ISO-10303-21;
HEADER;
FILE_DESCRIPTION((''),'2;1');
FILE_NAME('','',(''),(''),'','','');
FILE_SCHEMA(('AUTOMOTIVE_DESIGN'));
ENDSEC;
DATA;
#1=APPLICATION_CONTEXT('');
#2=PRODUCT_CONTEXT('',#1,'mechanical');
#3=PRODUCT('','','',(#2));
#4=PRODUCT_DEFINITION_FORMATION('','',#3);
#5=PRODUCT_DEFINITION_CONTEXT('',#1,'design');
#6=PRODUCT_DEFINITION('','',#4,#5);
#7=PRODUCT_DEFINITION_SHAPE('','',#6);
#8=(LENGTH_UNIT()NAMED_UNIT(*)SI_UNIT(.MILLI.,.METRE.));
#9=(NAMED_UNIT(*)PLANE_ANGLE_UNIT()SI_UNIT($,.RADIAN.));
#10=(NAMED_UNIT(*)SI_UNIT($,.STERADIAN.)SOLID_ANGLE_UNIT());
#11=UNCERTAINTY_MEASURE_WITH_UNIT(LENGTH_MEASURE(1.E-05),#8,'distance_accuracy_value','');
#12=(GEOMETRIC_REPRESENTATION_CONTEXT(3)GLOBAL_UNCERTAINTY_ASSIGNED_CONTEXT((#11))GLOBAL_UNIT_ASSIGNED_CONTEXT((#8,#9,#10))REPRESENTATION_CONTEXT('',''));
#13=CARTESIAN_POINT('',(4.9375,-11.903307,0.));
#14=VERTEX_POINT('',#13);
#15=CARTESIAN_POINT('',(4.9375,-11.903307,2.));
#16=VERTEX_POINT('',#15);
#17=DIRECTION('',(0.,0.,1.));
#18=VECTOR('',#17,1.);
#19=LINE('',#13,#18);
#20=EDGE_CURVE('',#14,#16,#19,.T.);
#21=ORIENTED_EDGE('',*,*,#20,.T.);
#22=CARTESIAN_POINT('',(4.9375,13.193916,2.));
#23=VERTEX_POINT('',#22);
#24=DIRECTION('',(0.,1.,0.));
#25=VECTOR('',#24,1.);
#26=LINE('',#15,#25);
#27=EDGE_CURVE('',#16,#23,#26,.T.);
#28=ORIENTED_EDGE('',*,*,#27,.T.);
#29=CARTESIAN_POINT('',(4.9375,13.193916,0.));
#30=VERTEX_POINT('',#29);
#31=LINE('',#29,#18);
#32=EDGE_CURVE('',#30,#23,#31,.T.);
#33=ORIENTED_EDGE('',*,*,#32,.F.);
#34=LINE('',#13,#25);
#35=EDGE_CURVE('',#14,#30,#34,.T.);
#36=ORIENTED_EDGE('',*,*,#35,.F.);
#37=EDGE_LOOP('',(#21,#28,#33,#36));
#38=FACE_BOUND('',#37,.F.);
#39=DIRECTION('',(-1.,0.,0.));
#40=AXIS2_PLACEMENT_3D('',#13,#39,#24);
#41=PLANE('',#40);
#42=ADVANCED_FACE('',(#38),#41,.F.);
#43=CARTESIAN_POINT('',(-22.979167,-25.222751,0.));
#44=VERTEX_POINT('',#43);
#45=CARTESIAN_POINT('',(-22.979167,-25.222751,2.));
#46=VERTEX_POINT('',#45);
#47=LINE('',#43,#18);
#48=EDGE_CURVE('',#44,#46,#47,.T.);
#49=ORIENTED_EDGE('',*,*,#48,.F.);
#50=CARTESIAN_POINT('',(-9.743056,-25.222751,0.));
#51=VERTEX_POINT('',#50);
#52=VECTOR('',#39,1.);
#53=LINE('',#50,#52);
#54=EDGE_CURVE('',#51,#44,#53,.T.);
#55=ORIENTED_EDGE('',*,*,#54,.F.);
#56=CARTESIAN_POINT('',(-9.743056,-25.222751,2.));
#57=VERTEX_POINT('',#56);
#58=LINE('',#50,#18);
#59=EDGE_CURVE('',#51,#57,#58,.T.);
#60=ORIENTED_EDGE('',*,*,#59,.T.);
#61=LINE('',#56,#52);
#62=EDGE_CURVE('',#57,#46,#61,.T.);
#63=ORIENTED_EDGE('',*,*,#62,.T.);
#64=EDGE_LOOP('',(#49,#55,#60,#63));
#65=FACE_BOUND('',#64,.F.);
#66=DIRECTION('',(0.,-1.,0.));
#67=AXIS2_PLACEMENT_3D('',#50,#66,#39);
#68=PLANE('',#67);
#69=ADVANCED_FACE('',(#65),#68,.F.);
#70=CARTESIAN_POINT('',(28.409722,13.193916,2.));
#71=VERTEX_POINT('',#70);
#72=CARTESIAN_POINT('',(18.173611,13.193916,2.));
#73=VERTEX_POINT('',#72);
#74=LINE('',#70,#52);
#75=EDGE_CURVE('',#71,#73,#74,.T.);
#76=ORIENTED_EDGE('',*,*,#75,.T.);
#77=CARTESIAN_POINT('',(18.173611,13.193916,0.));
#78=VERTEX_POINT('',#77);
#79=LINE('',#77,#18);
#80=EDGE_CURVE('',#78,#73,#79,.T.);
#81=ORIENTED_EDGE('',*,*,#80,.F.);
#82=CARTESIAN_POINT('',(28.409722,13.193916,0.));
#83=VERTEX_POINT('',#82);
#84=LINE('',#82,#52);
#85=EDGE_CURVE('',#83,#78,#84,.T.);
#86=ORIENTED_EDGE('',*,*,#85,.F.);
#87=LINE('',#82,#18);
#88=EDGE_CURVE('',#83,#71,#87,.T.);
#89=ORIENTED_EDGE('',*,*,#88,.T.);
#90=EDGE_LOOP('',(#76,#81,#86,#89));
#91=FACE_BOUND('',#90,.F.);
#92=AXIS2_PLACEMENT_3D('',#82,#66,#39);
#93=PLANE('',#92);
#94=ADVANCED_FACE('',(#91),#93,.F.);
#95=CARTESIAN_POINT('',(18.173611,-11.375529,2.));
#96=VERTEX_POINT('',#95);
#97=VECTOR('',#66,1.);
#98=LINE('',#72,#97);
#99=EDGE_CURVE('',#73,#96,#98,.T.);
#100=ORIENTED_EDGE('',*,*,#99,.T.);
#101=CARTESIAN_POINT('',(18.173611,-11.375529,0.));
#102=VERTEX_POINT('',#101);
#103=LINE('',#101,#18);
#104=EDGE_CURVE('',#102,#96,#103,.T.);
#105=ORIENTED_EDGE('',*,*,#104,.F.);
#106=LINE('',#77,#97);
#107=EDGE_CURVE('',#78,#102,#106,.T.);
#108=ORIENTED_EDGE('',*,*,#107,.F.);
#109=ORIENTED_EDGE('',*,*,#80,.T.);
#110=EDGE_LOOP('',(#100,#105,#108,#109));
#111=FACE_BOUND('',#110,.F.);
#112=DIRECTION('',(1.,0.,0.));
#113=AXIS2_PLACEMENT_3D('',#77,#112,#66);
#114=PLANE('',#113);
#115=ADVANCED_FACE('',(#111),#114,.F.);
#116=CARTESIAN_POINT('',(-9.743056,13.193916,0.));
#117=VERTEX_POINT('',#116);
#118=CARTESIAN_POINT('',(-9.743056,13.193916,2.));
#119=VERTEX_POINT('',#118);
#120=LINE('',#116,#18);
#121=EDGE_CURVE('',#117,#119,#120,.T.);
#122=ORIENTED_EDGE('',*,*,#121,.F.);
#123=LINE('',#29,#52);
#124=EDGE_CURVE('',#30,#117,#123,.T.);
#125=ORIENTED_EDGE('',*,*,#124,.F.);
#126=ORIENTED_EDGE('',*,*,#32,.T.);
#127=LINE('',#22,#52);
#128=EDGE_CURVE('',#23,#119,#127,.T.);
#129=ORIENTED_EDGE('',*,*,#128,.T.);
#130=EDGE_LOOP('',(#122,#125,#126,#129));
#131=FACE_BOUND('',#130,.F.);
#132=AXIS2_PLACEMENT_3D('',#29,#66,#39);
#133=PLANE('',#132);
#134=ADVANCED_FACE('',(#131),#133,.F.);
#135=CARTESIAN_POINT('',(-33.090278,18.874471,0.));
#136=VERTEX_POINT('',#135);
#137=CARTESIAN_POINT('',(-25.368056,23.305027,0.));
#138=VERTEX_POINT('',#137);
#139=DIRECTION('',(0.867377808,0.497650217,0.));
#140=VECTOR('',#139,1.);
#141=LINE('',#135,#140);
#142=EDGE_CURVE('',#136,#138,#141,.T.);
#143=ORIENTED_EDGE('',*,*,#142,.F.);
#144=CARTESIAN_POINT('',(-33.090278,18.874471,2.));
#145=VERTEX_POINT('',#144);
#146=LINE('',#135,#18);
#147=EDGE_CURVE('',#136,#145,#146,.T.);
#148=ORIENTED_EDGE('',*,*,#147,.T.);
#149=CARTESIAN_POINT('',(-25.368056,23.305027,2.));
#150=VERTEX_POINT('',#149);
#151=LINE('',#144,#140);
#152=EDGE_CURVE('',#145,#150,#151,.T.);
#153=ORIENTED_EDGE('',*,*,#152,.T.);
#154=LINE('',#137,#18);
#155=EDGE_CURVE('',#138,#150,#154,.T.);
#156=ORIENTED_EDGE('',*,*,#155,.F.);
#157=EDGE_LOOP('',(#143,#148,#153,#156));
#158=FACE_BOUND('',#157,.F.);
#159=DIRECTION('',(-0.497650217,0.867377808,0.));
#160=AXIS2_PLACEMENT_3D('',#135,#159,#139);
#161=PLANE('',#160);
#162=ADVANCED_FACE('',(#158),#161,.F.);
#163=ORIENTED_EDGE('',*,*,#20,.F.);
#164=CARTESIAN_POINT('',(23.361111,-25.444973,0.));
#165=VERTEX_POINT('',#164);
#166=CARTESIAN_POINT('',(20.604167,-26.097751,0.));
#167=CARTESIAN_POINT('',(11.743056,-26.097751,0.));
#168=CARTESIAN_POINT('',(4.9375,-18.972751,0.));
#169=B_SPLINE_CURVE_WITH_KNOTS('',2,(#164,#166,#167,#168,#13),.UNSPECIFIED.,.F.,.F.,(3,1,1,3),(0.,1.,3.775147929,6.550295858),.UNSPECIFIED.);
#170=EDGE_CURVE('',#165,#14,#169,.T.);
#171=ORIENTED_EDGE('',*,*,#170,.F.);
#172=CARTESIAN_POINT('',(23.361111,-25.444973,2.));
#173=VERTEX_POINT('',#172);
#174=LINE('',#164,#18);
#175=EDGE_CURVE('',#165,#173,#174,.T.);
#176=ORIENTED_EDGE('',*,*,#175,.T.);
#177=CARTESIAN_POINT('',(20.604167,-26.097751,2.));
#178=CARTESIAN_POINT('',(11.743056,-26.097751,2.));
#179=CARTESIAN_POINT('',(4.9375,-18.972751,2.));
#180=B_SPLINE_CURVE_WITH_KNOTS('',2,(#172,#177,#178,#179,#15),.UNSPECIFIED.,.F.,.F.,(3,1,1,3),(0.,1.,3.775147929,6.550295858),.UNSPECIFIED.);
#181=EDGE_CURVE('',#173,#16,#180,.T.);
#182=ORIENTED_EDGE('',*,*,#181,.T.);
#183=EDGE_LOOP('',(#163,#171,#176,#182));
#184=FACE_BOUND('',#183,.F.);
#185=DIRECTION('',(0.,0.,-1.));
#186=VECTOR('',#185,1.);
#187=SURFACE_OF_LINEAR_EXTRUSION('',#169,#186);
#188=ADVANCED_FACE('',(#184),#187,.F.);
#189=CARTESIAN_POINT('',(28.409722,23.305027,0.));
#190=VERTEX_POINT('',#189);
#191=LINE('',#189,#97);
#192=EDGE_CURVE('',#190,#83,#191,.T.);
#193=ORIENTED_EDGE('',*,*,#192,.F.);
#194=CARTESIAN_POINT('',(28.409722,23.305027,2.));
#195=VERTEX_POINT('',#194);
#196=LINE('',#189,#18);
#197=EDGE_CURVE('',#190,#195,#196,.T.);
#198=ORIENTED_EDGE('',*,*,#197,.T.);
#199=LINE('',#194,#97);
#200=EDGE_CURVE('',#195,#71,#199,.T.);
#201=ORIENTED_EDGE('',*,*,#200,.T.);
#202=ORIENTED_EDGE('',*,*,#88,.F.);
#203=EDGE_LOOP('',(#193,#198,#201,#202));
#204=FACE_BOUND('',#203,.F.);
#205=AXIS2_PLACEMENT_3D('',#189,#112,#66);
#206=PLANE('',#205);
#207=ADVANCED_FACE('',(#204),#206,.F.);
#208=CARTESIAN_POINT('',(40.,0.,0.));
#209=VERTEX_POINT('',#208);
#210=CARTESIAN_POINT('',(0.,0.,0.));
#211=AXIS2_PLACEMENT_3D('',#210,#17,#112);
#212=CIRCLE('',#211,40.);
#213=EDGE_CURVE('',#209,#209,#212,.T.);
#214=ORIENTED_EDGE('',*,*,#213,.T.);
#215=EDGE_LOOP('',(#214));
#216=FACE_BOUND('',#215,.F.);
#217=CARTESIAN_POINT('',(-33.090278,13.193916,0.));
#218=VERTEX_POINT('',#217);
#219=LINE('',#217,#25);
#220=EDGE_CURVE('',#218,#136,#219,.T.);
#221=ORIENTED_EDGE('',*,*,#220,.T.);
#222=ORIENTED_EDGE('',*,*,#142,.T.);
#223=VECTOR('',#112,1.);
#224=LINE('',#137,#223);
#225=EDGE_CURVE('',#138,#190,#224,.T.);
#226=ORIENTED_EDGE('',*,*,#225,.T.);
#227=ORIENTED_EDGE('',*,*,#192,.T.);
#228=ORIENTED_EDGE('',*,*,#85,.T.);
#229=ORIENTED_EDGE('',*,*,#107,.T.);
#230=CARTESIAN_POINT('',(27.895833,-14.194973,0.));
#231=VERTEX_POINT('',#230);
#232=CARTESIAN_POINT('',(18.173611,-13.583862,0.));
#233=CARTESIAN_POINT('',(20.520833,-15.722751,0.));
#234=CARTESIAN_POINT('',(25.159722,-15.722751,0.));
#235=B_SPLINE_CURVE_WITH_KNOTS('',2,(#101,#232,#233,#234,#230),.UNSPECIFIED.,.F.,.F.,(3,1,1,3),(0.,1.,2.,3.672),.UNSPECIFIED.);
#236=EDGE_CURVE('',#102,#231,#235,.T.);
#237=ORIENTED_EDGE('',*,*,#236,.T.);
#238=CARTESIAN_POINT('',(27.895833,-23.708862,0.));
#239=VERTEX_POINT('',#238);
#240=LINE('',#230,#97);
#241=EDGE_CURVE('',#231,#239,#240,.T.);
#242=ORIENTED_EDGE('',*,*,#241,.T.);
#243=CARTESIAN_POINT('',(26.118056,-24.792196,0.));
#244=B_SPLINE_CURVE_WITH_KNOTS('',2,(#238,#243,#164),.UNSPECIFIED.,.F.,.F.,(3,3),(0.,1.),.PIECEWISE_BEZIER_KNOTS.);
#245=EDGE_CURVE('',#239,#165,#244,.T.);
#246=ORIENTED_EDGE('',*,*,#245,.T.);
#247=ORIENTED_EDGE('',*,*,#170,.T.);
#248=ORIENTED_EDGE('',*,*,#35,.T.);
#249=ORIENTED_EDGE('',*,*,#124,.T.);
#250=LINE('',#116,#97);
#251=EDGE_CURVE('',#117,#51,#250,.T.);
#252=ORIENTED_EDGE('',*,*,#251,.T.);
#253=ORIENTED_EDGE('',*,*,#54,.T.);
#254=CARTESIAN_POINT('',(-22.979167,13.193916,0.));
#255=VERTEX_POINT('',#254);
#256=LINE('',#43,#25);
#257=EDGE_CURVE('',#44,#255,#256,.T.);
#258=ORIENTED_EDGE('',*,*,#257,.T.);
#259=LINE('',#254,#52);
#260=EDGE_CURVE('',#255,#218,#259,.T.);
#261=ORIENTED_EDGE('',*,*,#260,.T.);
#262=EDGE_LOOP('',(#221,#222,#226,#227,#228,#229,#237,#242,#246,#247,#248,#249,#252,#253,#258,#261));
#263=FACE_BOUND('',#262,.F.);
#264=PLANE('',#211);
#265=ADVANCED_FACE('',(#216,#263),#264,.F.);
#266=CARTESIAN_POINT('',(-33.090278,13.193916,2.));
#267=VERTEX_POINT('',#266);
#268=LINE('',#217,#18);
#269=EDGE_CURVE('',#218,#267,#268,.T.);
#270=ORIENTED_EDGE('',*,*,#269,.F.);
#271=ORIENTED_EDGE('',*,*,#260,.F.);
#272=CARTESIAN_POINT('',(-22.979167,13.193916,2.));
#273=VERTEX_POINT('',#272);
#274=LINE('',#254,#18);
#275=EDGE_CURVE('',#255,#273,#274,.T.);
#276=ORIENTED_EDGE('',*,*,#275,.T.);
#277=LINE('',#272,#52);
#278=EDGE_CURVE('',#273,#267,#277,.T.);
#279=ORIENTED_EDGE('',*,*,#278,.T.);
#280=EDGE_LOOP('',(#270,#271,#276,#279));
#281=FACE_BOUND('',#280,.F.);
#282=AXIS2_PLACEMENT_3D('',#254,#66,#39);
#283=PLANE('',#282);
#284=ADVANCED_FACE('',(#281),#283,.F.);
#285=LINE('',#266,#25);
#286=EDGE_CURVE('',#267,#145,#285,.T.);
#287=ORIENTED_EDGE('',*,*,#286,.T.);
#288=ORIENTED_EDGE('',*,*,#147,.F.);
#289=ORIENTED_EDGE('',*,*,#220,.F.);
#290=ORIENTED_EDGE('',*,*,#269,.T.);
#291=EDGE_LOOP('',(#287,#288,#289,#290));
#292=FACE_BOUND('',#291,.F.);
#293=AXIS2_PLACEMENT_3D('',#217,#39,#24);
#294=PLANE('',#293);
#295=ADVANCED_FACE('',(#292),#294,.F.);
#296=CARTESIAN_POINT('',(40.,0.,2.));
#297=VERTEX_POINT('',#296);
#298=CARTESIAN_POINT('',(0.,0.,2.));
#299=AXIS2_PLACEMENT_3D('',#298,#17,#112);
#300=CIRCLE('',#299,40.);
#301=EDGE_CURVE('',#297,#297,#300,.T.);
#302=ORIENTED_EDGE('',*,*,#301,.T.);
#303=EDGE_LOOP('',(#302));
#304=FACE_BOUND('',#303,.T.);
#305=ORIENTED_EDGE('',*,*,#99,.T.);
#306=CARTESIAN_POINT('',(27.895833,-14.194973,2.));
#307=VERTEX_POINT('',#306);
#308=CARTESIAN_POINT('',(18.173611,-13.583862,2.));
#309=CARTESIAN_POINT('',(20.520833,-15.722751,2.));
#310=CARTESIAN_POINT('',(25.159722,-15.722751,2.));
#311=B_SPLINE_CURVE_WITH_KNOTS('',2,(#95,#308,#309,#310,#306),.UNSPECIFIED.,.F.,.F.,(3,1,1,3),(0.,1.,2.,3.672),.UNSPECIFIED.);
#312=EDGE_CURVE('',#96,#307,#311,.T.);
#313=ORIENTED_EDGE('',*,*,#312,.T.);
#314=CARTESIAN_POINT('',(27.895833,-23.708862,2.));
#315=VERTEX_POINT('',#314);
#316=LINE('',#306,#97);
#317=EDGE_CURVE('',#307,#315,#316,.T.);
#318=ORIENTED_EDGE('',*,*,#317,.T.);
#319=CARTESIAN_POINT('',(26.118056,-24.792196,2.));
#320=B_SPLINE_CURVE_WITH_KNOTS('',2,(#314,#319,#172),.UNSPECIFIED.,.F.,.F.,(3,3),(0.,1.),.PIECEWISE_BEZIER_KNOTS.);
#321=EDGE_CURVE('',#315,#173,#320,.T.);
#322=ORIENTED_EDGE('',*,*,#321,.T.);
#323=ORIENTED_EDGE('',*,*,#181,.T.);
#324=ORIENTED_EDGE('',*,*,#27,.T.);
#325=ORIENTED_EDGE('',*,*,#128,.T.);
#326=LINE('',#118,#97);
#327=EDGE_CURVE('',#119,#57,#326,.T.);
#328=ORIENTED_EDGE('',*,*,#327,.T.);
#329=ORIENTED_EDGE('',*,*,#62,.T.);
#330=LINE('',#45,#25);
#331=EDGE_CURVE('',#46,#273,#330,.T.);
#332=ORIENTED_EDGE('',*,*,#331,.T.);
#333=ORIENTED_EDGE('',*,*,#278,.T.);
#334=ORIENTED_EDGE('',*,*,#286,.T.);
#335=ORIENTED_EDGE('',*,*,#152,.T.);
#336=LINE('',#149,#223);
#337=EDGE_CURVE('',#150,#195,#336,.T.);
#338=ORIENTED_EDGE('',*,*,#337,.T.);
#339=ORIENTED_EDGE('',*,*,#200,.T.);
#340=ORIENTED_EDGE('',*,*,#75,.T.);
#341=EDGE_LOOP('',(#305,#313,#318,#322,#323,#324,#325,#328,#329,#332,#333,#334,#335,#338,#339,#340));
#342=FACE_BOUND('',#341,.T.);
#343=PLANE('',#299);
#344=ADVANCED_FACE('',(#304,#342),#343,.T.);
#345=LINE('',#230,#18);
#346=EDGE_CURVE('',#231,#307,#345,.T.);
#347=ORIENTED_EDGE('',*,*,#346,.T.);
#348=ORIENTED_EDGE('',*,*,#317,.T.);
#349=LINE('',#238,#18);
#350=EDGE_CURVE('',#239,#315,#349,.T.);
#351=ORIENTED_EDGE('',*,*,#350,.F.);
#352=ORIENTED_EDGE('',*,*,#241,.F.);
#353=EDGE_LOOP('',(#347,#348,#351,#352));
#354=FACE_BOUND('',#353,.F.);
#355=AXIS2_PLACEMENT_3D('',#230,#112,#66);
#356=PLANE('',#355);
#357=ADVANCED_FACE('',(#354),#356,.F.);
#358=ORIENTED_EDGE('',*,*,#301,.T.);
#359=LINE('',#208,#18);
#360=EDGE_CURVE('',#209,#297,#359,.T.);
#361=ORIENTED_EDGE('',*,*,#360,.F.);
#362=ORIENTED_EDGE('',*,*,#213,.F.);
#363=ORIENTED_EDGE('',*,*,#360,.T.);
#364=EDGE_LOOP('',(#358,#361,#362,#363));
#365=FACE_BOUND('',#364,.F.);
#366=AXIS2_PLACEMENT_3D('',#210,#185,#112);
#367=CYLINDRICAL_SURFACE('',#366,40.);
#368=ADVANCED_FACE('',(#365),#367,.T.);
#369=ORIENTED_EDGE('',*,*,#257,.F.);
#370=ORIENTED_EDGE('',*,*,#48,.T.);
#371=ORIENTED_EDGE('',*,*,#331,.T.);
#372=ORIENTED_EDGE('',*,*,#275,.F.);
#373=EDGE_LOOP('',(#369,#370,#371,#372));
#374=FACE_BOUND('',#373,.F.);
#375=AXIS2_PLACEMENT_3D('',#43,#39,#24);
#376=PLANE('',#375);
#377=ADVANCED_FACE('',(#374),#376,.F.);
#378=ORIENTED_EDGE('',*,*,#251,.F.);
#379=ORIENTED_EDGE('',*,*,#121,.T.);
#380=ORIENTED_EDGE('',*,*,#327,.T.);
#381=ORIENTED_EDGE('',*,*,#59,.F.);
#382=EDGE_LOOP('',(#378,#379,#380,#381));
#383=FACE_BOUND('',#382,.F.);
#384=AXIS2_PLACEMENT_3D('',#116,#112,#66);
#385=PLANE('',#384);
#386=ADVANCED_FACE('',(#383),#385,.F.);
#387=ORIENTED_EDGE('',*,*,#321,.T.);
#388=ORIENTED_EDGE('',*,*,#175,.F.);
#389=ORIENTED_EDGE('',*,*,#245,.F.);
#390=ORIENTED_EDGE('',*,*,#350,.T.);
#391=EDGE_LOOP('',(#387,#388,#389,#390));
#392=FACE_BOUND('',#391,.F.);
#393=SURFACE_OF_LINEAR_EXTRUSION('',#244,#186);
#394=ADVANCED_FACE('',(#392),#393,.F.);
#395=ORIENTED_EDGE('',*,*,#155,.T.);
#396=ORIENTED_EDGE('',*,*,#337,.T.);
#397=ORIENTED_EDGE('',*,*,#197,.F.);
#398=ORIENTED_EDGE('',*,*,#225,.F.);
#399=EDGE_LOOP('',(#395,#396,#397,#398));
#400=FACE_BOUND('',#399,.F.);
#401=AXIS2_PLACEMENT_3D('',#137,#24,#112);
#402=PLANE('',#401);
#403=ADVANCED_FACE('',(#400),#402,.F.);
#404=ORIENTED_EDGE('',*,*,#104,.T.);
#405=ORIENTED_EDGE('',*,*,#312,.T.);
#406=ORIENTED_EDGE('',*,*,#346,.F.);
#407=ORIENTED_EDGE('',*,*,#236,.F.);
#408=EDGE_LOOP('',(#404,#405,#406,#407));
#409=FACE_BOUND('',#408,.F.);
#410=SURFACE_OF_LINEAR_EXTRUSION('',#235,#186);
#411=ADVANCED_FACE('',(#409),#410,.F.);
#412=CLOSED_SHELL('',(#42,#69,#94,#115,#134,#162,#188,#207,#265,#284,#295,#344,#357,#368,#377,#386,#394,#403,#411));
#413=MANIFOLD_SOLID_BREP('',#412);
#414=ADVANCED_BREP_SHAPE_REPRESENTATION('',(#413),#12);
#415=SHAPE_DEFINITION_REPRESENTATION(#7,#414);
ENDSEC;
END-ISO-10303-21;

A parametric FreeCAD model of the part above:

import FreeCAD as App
import Part
import Sketcher

V = App.Vector

doc = App.newDocument("Part")
body = doc.addObject("PartDesign::Body", "Body")

# Sketch on XY plane
sketch1 = body.newObject("Sketcher::SketchObject", "Sketch")
sketch1.AttachmentSupport = (doc.getObject("XY_Plane"), [""])
sketch1.MapMode = "FlatFace"
sketch1.addGeometry(Part.Circle(V(0, 0, 0), V(0, 0, 1), 40), False)
sketch1.addGeometry(Part.BSplineCurve([V(18.173611, -11.375529, 0), V(18.173611, -13.583862, 0), V(20.520833, -15.722751, 0), V(25.159722, -15.722751, 0), V(27.895833, -14.194973, 0)], [3, 1, 1, 3], [0, 1, 2, 3.672], False, 2, [1, 1, 1, 1, 1], False), False)
sketch1.addGeometry(Part.LineSegment(V(27.895833, -14.194973, 0), V(27.895833, -23.708862, 0)), False)
sketch1.addGeometry(Part.BSplineCurve([V(27.895833, -23.708862, 0), V(26.118056, -24.792196, 0), V(23.361111, -25.444973, 0)], [3, 3], [0, 1], False, 2, [1, 1, 1], False), False)
sketch1.addGeometry(Part.BSplineCurve([V(23.361111, -25.444973, 0), V(20.604167, -26.097751, 0), V(11.743056, -26.097751, 0), V(4.9375, -18.972751, 0), V(4.9375, -11.903307, 0)], [3, 1, 1, 3], [0, 1, 3.775147929, 6.550295858], False, 2, [1, 1, 1, 1, 1], False), False)
sketch1.addGeometry(Part.LineSegment(V(4.9375, -11.903307, 0), V(4.9375, 13.193916, 0)), False)
sketch1.addGeometry(Part.LineSegment(V(4.9375, 13.193916, 0), V(-9.743056, 13.193916, 0)), False)
sketch1.addGeometry(Part.LineSegment(V(-9.743056, 13.193916, 0), V(-9.743056, -25.222751, 0)), False)
sketch1.addGeometry(Part.LineSegment(V(-9.743056, -25.222751, 0), V(-22.979167, -25.222751, 0)), False)
sketch1.addGeometry(Part.LineSegment(V(-22.979167, -25.222751, 0), V(-22.979167, 13.193916, 0)), False)
sketch1.addGeometry(Part.LineSegment(V(-22.979167, 13.193916, 0), V(-33.090278, 13.193916, 0)), False)
sketch1.addGeometry(Part.LineSegment(V(-33.090278, 13.193916, 0), V(-33.090278, 18.874471, 0)), False)
sketch1.addGeometry(Part.LineSegment(V(-33.090278, 18.874471, 0), V(-25.368056, 23.305027, 0)), False)
sketch1.addGeometry(Part.LineSegment(V(-25.368056, 23.305027, 0), V(28.409722, 23.305027, 0)), False)
sketch1.addGeometry(Part.LineSegment(V(28.409722, 23.305027, 0), V(28.409722, 13.193916, 0)), False)
sketch1.addGeometry(Part.LineSegment(V(28.409722, 13.193916, 0), V(18.173611, 13.193916, 0)), False)
sketch1.addGeometry(Part.LineSegment(V(18.173611, 13.193916, 0), V(18.173611, -11.375529, 0)), False)
sketch1.addConstraint(Sketcher.Constraint("Block", 1))
sketch1.addConstraint(Sketcher.Constraint("Block", 3))
sketch1.addConstraint(Sketcher.Constraint("Block", 4))
sketch1.addConstraint(Sketcher.Constraint("Coincident", 1, 2, 2, 1))
sketch1.addConstraint(Sketcher.Constraint("Coincident", 2, 2, 3, 1))
sketch1.addConstraint(Sketcher.Constraint("Coincident", 4, 2, 5, 1))
sketch1.addConstraint(Sketcher.Constraint("Coincident", 5, 2, 6, 1))
sketch1.addConstraint(Sketcher.Constraint("Coincident", 6, 2, 7, 1))
sketch1.addConstraint(Sketcher.Constraint("Coincident", 7, 2, 8, 1))
sketch1.addConstraint(Sketcher.Constraint("Coincident", 8, 2, 9, 1))
sketch1.addConstraint(Sketcher.Constraint("Coincident", 9, 2, 10, 1))
sketch1.addConstraint(Sketcher.Constraint("Coincident", 10, 2, 11, 1))
sketch1.addConstraint(Sketcher.Constraint("Coincident", 11, 2, 12, 1))
sketch1.addConstraint(Sketcher.Constraint("Coincident", 12, 2, 13, 1))
sketch1.addConstraint(Sketcher.Constraint("Coincident", 13, 2, 14, 1))
sketch1.addConstraint(Sketcher.Constraint("Coincident", 14, 2, 15, 1))
sketch1.addConstraint(Sketcher.Constraint("Coincident", 15, 2, 16, 1))
sketch1.addConstraint(Sketcher.Constraint("Coincident", 16, 2, 1, 1))
sketch1.addConstraint(Sketcher.Constraint("Vertical", 5))
sketch1.addConstraint(Sketcher.Constraint("Horizontal", 6))
sketch1.addConstraint(Sketcher.Constraint("Vertical", 7))
sketch1.addConstraint(Sketcher.Constraint("Horizontal", 8))
sketch1.addConstraint(Sketcher.Constraint("Vertical", 9))
sketch1.addConstraint(Sketcher.Constraint("Horizontal", 10))
sketch1.addConstraint(Sketcher.Constraint("Vertical", 11))
sketch1.addConstraint(Sketcher.Constraint("Horizontal", 13))
sketch1.addConstraint(Sketcher.Constraint("Vertical", 14))
sketch1.addConstraint(Sketcher.Constraint("Horizontal", 15))
sketch1.addConstraint(Sketcher.Constraint("Vertical", 16))
sketch1.addConstraint(Sketcher.Constraint("Coincident", 0, 3, -1, 1))
sketch1.addConstraint(Sketcher.Constraint("Horizontal", 6, 2, 9, 2))
sketch1.addConstraint(Sketcher.Constraint("Horizontal", 10, 2, 14, 2))
sketch1.addConstraint(Sketcher.Constraint("Equal", 10, 14))
sketch1.addConstraint(Sketcher.Constraint("Diameter", 0, 80.0))
sketch1.addConstraint(Sketcher.Constraint("DistanceX", 8, 2, 2, 2, 50.875))
sketch1.addConstraint(Sketcher.Constraint("DistanceX", 12, 2, 6, 2, 15.625))
sketch1.addConstraint(Sketcher.Constraint("DistanceX", 8, 2, 8, 1, 13.236111))
sketch1.addConstraint(Sketcher.Constraint("DistanceX", 10, 2, 10, 1, 10.111111))
sketch1.addConstraint(Sketcher.Constraint("DistanceX", 15, 2, 15, 1, 10.236111))
sketch1.addConstraint(Sketcher.Constraint("Distance", 12, 8.902951))
sketch1.addConstraint(Sketcher.Constraint("DistanceY", 5, 1, 5, 2, 25.097222))
sketch1.addConstraint(Sketcher.Constraint("DistanceY", 7, 2, 7, 1, 38.416667))
pad1 = body.newObject("PartDesign::Pad", "Pad")
pad1.Profile = sketch1
pad1.Length = 2

doc.recompute()
